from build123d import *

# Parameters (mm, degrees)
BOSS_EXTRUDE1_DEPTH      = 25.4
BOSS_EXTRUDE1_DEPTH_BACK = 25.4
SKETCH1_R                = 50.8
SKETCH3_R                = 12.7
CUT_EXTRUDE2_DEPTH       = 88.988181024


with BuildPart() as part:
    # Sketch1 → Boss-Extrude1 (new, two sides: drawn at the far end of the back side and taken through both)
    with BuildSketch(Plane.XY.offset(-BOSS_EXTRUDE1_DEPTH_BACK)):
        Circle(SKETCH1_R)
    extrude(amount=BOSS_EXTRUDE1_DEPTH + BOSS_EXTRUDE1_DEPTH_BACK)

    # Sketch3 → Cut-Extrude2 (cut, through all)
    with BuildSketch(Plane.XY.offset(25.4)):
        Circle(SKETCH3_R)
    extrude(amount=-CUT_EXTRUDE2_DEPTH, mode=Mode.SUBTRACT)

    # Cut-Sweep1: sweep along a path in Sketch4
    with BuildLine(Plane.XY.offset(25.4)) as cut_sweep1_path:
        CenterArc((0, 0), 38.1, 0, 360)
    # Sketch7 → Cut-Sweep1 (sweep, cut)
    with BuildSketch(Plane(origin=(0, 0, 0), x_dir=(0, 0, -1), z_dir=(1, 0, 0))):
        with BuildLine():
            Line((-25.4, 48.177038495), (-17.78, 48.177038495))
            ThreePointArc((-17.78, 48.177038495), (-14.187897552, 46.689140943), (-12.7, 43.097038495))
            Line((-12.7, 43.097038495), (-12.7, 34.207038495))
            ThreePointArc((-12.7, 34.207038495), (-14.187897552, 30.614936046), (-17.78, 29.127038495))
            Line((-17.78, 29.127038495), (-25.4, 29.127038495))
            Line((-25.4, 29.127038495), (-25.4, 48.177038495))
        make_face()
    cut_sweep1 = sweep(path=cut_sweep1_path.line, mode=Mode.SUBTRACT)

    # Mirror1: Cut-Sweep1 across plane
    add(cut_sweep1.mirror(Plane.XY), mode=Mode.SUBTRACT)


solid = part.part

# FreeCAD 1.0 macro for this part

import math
import FreeCAD as App
import Part
import Sketcher

V = App.Vector
Q = App.Units.Quantity

doc = App.newDocument("Part")
body = doc.addObject("PartDesign::Body", "Body")

# Sketch on XY plane
sketch1 = doc.addObject("Sketcher::SketchObject", "Sketch")
body.addObject(sketch1)
sketch1.AttachmentSupport = (doc.XY_Plane, [""])
sketch1.MapMode = "FlatFace"
sketch1.addGeometry(Part.Circle(V(0, 0, 0), V(0, 0, 1), 51), False)
sketch1.addConstraint([
    Sketcher.Constraint("Coincident", 0, 3, -1, 1),
    Sketcher.Constraint("Diameter", 0, Q("4 in")),
])
pad1 = doc.addObject("PartDesign::Pad", "Pad")
body.addObject(pad1)
pad1.Profile = sketch1
pad1.Type = "TwoLengths"
pad1.Length = Q("1 in")
pad1.Length2 = Q("1 in")

# Sketch on XY plane
sketch2 = doc.addObject("Sketcher::SketchObject", "Sketch001")
body.addObject(sketch2)
sketch2.AttachmentSupport = (doc.XY_Plane, [""])
sketch2.MapMode = "FlatFace"
sketch2.AttachmentOffset = App.Placement(V(0, 0, 1 * 25.4), App.Rotation())
sketch2.addGeometry(Part.Circle(V(0, 0, 0), V(0, 0, 1), 13), False)
sketch2.addConstraint([
    Sketcher.Constraint("Coincident", 0, 3, -1, 1),
    Sketcher.Constraint("Diameter", 0, Q("1 in")),
])
pocket1 = doc.addObject("PartDesign::Pocket", "Pocket")
body.addObject(pocket1)
pocket1.Profile = sketch2
pocket1.Type = "ThroughAll"

# Sketch on YZ plane
sketch3 = doc.addObject("Sketcher::SketchObject", "Sketch002")
body.addObject(sketch3)
sketch3.AttachmentSupport = (doc.YZ_Plane, [""])
sketch3.MapMode = "FlatFace"
sketch3.addGeometry([
    Part.LineSegment(V(48, 18, 0), V(48, 25, 0)),  # 0
    Part.LineSegment(V(48, 25, 0), V(29, 25, 0)),  # 1
    Part.LineSegment(V(29, 25, 0), V(29, 18, 0)),  # 2
    Part.ArcOfCircle(Part.Circle(V(34, 18, 0), V(0, 0, 1), 5), math.radians(180), math.radians(270)),  # 3
    Part.LineSegment(V(34, 13, 0), V(43, 13, 0)),  # 4
    Part.ArcOfCircle(Part.Circle(V(43, 18, 0), V(0, 0, 1), 5), math.radians(-90), math.radians(0)),  # 5
], False)
sketch3.addConstraint([
    Sketcher.Constraint("Coincident", 0, 2, 1, 1),
    Sketcher.Constraint("Coincident", 1, 2, 2, 1),
    Sketcher.Constraint("Tangent", 2, 2, 3, 1),
    Sketcher.Constraint("Tangent", 3, 2, 4, 1),
    Sketcher.Constraint("Tangent", 4, 2, 5, 1),
    Sketcher.Constraint("Tangent", 5, 2, 0, 1),
    Sketcher.Constraint("Vertical", 0),
    Sketcher.Constraint("Horizontal", 1),
    Sketcher.Constraint("Vertical", 2),
    Sketcher.Constraint("Horizontal", 4),
    Sketcher.Constraint("Equal", 3, 5),
    Sketcher.Constraint("Radius", 3, Q("0.2 in")),
    Sketcher.Constraint("DistanceY", 0, 1, 0, 2, Q("0.3 in")),
    Sketcher.Constraint("DistanceY", -1, 1, 0, 2, Q("1 in")),
    Sketcher.Constraint("DistanceX", 1, 2, 1, 1, Q("0.75 in")),
    Sketcher.Constraint("DistanceX", -1, 1, 3, 3, Q("34.207038 mm")),
])

# Sketch on XY plane
sketch4 = doc.addObject("Sketcher::SketchObject", "Sketch003")
body.addObject(sketch4)
sketch4.AttachmentSupport = (doc.XY_Plane, [""])
sketch4.MapMode = "FlatFace"
sketch4.AttachmentOffset = App.Placement(V(0, 0, 1 * 25.4), App.Rotation())
sketch4.addGeometry(Part.Circle(V(0, 0, 0), V(0, 0, 1), 38), False)
sketch4.addConstraint([
    Sketcher.Constraint("Coincident", 0, 3, -1, 1),
    Sketcher.Constraint("Diameter", 0, Q("3 in")),
])
doc.recompute()

subtractivepipe = doc.addObject("PartDesign::SubtractivePipe", "SubtractivePipe")
body.addObject(subtractivepipe)
subtractivepipe.Profile = sketch3
subtractivepipe.Spine = (sketch4, ["Edge1"])
doc.recompute()

mirrored = doc.addObject("PartDesign::Mirrored", "Mirrored")
body.addObject(mirrored)
mirrored.Originals = [subtractivepipe]
mirrored.MirrorPlane = (doc.XY_Plane, [""])
body.Tip = mirrored

doc.recompute()
